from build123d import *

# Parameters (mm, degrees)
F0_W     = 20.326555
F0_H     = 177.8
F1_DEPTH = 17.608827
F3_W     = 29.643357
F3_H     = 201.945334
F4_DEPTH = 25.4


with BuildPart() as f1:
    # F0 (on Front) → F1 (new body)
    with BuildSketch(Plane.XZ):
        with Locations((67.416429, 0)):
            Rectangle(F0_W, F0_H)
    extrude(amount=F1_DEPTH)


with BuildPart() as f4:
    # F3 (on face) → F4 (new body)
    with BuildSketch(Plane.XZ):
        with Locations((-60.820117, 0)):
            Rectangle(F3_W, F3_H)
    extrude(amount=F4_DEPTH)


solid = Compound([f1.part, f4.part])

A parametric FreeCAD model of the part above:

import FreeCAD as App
import Part
import Sketcher

V = App.Vector
Q = App.Units.Quantity

doc = App.newDocument("Part")
body = doc.addObject("PartDesign::Body", "Body")

# Sketch on XZ plane
sketch1 = body.newObject("Sketcher::SketchObject", "Sketch")
sketch1.AttachmentSupport = (doc.getObject("XZ_Plane"), [""])
sketch1.MapMode = "FlatFace"
sketch1.addGeometry(Part.LineSegment(V(57, 89, 0), V(57, -89, 0)), False)
sketch1.addGeometry(Part.LineSegment(V(57, -89, 0), V(78, -89, 0)), False)
sketch1.addGeometry(Part.LineSegment(V(78, -89, 0), V(78, 89, 0)), False)
sketch1.addGeometry(Part.LineSegment(V(78, 89, 0), V(57, 89, 0)), False)
sketch1.addConstraint(Sketcher.Constraint("Coincident", 0, 2, 1, 1))
sketch1.addConstraint(Sketcher.Constraint("Coincident", 1, 2, 2, 1))
sketch1.addConstraint(Sketcher.Constraint("Coincident", 2, 2, 3, 1))
sketch1.addConstraint(Sketcher.Constraint("Coincident", 3, 2, 0, 1))
sketch1.addConstraint(Sketcher.Constraint("Vertical", 0))
sketch1.addConstraint(Sketcher.Constraint("Horizontal", 1))
sketch1.addConstraint(Sketcher.Constraint("Vertical", 2))
sketch1.addConstraint(Sketcher.Constraint("Horizontal", 3))
sketch1.addConstraint(Sketcher.Constraint("DistanceY", 0, 2, 0, 1, Q("7 in")))
sketch1.addConstraint(Sketcher.Constraint("DistanceY", 0, 2, -1, 1, Q("3.5 in")))
sketch1.addConstraint(Sketcher.Constraint("DistanceX", 1, 1, 1, 2, 20.326555))
sketch1.addConstraint(Sketcher.Constraint("DistanceX", -1, 1, 0, 2, 57.253152))
pad1 = body.newObject("PartDesign::Pad", "Pad")
pad1.Profile = sketch1
pad1.Length = 17.608827
body2 = doc.addObject("PartDesign::Body", "Body001")

# Sketch on XZ plane
sketch2 = body2.newObject("Sketcher::SketchObject", "Sketch001")
sketch2.AttachmentSupport = (doc.getObject("XZ_Plane001"), [""])
sketch2.MapMode = "FlatFace"
sketch2.addGeometry(Part.LineSegment(V(-76, 101, 0), V(-76, -101, 0)), False)
sketch2.addGeometry(Part.LineSegment(V(-76, -101, 0), V(-46, -101, 0)), False)
sketch2.addGeometry(Part.LineSegment(V(-46, -101, 0), V(-46, 101, 0)), False)
sketch2.addGeometry(Part.LineSegment(V(-46, 101, 0), V(-76, 101, 0)), False)
sketch2.addConstraint(Sketcher.Constraint("Coincident", 0, 2, 1, 1))
sketch2.addConstraint(Sketcher.Constraint("Coincident", 1, 2, 2, 1))
sketch2.addConstraint(Sketcher.Constraint("Coincident", 2, 2, 3, 1))
sketch2.addConstraint(Sketcher.Constraint("Coincident", 3, 2, 0, 1))
sketch2.addConstraint(Sketcher.Constraint("Vertical", 0))
sketch2.addConstraint(Sketcher.Constraint("Horizontal", 1))
sketch2.addConstraint(Sketcher.Constraint("Vertical", 2))
sketch2.addConstraint(Sketcher.Constraint("Horizontal", 3))
sketch2.addConstraint(Sketcher.Constraint("DistanceX", 1, 1, 1, 2, 29.643357))
sketch2.addConstraint(Sketcher.Constraint("DistanceY", 0, 2, 0, 1, 201.945334))
sketch2.addConstraint(Sketcher.Constraint("DistanceX", 1, 2, -1, 1, 45.998438))
sketch2.addConstraint(Sketcher.Constraint("DistanceY", 0, 2, -1, 1, 100.972667))
pad2 = body2.newObject("PartDesign::Pad", "Pad001")
pad2.Profile = sketch2
pad2.Length = Q("1 in")

doc.recompute()
